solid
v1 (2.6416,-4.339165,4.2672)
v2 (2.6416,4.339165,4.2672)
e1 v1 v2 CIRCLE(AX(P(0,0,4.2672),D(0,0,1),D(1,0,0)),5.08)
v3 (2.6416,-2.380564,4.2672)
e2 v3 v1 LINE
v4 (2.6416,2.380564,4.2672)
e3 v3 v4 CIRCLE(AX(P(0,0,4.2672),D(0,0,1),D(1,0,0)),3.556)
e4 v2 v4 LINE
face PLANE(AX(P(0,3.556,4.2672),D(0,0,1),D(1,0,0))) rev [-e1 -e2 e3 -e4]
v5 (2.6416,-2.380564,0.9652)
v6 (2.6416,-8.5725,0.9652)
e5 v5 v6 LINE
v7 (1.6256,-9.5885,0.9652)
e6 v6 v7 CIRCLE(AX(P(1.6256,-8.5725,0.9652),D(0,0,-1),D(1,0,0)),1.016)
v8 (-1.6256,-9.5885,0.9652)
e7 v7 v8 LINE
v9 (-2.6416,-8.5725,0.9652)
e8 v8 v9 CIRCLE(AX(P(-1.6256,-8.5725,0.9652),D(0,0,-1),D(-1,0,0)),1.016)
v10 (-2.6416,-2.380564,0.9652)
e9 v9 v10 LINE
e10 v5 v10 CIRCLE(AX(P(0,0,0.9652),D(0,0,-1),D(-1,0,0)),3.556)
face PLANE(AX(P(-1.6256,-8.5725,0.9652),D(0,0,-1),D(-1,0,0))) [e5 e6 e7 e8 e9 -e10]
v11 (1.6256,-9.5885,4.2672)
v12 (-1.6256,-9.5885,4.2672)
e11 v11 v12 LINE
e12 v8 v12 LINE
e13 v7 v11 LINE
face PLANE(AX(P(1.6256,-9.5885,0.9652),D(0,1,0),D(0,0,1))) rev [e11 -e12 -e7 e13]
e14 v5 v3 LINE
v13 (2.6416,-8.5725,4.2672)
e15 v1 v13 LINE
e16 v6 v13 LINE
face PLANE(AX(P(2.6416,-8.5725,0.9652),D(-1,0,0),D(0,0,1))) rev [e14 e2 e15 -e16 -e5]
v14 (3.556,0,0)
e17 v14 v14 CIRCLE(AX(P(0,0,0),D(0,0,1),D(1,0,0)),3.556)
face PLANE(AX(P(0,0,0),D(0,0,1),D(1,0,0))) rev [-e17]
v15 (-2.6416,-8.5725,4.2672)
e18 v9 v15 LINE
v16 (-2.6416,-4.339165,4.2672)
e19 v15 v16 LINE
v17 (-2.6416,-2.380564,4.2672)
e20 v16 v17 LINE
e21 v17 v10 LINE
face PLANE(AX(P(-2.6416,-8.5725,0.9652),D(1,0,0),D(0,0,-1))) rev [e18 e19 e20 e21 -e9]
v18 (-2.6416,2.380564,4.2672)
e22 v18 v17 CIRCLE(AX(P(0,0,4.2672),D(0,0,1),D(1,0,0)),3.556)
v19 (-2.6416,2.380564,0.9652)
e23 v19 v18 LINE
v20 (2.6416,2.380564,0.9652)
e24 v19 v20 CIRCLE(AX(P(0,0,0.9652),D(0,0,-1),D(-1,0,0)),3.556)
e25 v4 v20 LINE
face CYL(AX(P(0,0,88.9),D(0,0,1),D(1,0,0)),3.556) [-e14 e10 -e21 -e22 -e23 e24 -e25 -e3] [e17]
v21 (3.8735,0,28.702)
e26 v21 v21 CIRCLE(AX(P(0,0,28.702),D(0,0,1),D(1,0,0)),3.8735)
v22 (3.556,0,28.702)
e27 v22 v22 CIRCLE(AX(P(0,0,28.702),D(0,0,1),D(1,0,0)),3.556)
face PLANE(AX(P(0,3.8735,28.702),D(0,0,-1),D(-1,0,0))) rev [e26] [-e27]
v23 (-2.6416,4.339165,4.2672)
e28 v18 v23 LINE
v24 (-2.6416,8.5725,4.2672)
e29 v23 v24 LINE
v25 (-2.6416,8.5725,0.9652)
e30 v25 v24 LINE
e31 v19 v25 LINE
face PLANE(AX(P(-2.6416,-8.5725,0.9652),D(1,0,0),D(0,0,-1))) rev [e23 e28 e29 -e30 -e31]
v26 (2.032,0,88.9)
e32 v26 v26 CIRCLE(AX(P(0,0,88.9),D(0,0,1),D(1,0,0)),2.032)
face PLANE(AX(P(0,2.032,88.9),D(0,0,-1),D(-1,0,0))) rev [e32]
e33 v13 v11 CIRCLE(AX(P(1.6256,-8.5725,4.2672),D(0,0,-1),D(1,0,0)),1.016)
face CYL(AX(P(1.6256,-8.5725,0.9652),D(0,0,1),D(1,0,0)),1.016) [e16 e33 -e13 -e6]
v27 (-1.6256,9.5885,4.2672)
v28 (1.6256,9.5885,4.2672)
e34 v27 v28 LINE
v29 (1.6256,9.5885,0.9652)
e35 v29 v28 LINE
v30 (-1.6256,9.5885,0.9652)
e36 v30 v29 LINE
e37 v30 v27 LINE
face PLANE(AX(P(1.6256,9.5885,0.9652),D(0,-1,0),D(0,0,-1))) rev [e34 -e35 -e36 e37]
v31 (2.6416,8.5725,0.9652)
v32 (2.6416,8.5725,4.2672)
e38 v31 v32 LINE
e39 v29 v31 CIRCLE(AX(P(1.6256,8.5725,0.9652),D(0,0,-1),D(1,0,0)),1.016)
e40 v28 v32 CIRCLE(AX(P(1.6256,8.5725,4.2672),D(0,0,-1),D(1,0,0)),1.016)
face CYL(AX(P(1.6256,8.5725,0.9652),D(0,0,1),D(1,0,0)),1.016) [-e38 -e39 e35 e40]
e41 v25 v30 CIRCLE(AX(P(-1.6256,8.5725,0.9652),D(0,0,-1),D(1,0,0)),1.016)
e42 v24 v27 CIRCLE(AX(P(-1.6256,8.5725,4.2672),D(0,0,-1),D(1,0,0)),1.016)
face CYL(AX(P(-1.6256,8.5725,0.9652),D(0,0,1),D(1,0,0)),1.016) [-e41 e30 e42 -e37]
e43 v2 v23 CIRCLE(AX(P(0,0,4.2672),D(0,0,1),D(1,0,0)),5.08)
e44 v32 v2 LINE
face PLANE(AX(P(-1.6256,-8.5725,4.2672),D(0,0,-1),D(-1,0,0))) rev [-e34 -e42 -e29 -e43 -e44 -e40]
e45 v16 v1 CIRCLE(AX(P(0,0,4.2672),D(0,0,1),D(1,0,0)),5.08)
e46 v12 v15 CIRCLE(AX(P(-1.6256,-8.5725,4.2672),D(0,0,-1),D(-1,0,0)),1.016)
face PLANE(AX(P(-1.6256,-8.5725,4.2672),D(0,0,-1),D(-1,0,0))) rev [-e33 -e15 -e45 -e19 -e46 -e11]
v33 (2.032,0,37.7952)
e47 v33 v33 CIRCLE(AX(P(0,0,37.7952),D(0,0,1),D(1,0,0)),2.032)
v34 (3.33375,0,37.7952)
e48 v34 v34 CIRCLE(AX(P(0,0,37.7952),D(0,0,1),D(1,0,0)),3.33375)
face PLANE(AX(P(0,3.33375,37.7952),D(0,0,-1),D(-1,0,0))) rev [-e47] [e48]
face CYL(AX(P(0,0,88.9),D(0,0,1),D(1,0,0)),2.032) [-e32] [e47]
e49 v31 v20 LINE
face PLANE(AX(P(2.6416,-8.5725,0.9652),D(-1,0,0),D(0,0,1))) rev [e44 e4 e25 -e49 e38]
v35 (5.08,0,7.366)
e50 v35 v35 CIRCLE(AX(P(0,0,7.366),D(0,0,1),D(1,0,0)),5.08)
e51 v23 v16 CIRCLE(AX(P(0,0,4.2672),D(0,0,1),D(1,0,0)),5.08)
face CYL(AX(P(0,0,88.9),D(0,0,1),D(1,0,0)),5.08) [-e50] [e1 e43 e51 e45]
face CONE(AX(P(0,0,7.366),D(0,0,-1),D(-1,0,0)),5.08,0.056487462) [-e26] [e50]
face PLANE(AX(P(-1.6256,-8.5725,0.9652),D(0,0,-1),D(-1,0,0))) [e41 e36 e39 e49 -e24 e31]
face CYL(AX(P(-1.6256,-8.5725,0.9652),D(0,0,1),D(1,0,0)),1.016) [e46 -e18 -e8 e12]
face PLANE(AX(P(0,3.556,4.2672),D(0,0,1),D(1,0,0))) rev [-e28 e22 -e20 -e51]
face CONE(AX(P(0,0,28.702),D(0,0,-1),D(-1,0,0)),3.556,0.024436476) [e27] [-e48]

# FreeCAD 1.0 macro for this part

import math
import FreeCAD as App
import Part
import Sketcher

V = App.Vector
Q = App.Units.Quantity


def add_polygon(sketch, points):
    """Adds a closed chain of lines whose ends are joined by coincident constraints."""
    first, n = sketch.GeometryCount, len(points)
    for a, b in zip(points, points[1:] + points[:1]):
        sketch.addGeometry(Part.LineSegment(App.Vector(*a, 0), App.Vector(*b, 0)), False)
    for i in range(n):
        sketch.addConstraint(Sketcher.Constraint("Coincident", first + i, 2, first + (i + 1) % n, 1))

doc = App.newDocument("Part")
params = doc.addObject("Spreadsheet::Sheet", "Params")
for row, (alias, value) in enumerate([
    ("sketch1_height", "3.5 in"),
    ("sketch1_width", "0.06 in"),
    ("sketch1_width2", "0.08 in"),
    ("sketch1_width3", "0.14 in"),
    ("sketch1_height2", "0.168 in"),
    ("revolution_angle", "360 deg"),
    ("sketch2_radius", "0.04 in"),
    ("sketch2_width", "0.128 in"),
    ("sketch2_height", "0.675 in"),
    ("pad1_length", "0.13 in"),
], start=1):
    params.set(f"A{row}", alias)
    params.set(f"B{row}", "=" + value)
    params.setAlias(f"B{row}", alias)

body = doc.addObject("PartDesign::Body", "Body")

# Sketch on YZ plane
sketch1 = body.newObject("Sketcher::SketchObject", "Sketch")
sketch1.AttachmentSupport = (doc.getObject("YZ_Plane"), [""])
sketch1.MapMode = "FlatFace"
add_polygon(sketch1, [(3.56, 0), (3.56, 4.27), (5.08, 4.27), (5.08, 7.37), (3.87, 28.7), (3.56, 28.7), (3.33, 37.8), (2.03, 37.8), (2.03, 88.9), (0, 88.9), (0, 0)])  # lines 0-10
sketch1.addConstraint(Sketcher.Constraint("Vertical", 0))
sketch1.addConstraint(Sketcher.Constraint("Horizontal", 1))
sketch1.addConstraint(Sketcher.Constraint("Vertical", 2))
sketch1.addConstraint(Sketcher.Constraint("Horizontal", 4))
sketch1.addConstraint(Sketcher.Constraint("Horizontal", 6))
sketch1.addConstraint(Sketcher.Constraint("Vertical", 7))
sketch1.addConstraint(Sketcher.Constraint("Horizontal", 8))
sketch1.addConstraint(Sketcher.Constraint("Vertical", 9))
sketch1.addConstraint(Sketcher.Constraint("Horizontal", 10))
sketch1.addConstraint(Sketcher.Constraint("Coincident", 9, 2, -1, 1))
sketch1.addConstraint(Sketcher.Constraint("Vertical", 0, 2, 4, 2))
sketch1.addConstraint(Sketcher.Constraint("DistanceY", 9, 2, 9, 1, Q("3.5 in")))
sketch1.addConstraint(Sketcher.Constraint("DistanceX", 1, 1, 1, 2, Q("0.06 in")))
sketch1.addConstraint(Sketcher.Constraint("DistanceX", 8, 2, 8, 1, Q("0.08 in")))
sketch1.addConstraint(Sketcher.Constraint("DistanceX", 10, 1, 10, 2, Q("0.14 in")))
sketch1.addConstraint(Sketcher.Constraint("DistanceY", 0, 1, 0, 2, Q("0.168 in")))
sketch1.addConstraint(Sketcher.Constraint("DistanceY", 2, 1, 2, 2, Q("0.122 in")))
sketch1.addConstraint(Sketcher.Constraint("DistanceY", 7, 1, 7, 2, Q("2.012 in")))
sketch1.addConstraint(Sketcher.Constraint("DistanceY", -1, 1, 3, 2, Q("1.13 in")))
sketch1.addConstraint(Sketcher.Constraint("DistanceX", 4, 2, 4, 1, Q("0.0125 in")))
sketch1.addConstraint(Sketcher.Constraint("DistanceX", 6, 2, 6, 1, Q("1.30175 mm")))
sketch1.setExpression("Constraints[22]", "Params.sketch1_height")
sketch1.setExpression("Constraints[23]", "Params.sketch1_width")
sketch1.setExpression("Constraints[24]", "Params.sketch1_width2")
sketch1.setExpression("Constraints[25]", "Params.sketch1_width3")
sketch1.setExpression("Constraints[26]", "Params.sketch1_height2")
revolution = body.newObject("PartDesign::Revolution", "Revolution")
revolution.Profile = sketch1
revolution.ReferenceAxis = (sketch1, ["V_Axis"])
revolution.setExpression("Angle", "Params.revolution_angle")

# Sketch on XY plane
sketch2 = body.newObject("Sketcher::SketchObject", "Sketch001")
sketch2.AttachmentSupport = (doc.getObject("XY_Plane"), [""])
sketch2.MapMode = "FlatFace"
sketch2.AttachmentOffset = App.Placement(V(0, 0, 0.168 * 25.4), App.Rotation())
sketch2.addGeometry(Part.LineSegment(V(1.6, -9.6, 0), V(-1.6, -9.6, 0)), False)
sketch2.addGeometry(Part.ArcOfCircle(Part.Circle(V(-1.6, -8.6, 0), V(0, 0, 1), 1), math.radians(180), math.radians(270)), False)
sketch2.addGeometry(Part.LineSegment(V(-2.6, -8.6, 0), V(-2.6, 8.6, 0)), False)
sketch2.addGeometry(Part.ArcOfCircle(Part.Circle(V(-1.6, 8.6, 0), V(0, 0, 1), 1), math.radians(90), math.radians(180)), False)
sketch2.addGeometry(Part.LineSegment(V(-1.6, 9.6, 0), V(1.6, 9.6, 0)), False)
sketch2.addGeometry(Part.ArcOfCircle(Part.Circle(V(1.6, 8.6, 0), V(0, 0, 1), 1), math.radians(0), math.radians(90)), False)
sketch2.addGeometry(Part.LineSegment(V(2.6, 8.6, 0), V(2.6, -8.6, 0)), False)
sketch2.addGeometry(Part.ArcOfCircle(Part.Circle(V(1.6, -8.6, 0), V(0, 0, 1), 1), math.radians(-90), math.radians(0)), False)
sketch2.addConstraint(Sketcher.Constraint("Tangent", 0, 2, 1, 2))
sketch2.addConstraint(Sketcher.Constraint("Tangent", 1, 1, 2, 1))
sketch2.addConstraint(Sketcher.Constraint("Tangent", 2, 2, 3, 2))
sketch2.addConstraint(Sketcher.Constraint("Tangent", 3, 1, 4, 1))
sketch2.addConstraint(Sketcher.Constraint("Tangent", 4, 2, 5, 2))
sketch2.addConstraint(Sketcher.Constraint("Tangent", 5, 1, 6, 1))
sketch2.addConstraint(Sketcher.Constraint("Tangent", 6, 2, 7, 2))
sketch2.addConstraint(Sketcher.Constraint("Tangent", 7, 1, 0, 1))
sketch2.addConstraint(Sketcher.Constraint("Horizontal", 0))
sketch2.addConstraint(Sketcher.Constraint("Vertical", 2))
sketch2.addConstraint(Sketcher.Constraint("Horizontal", 4))
sketch2.addConstraint(Sketcher.Constraint("Vertical", 6))
sketch2.addConstraint(Sketcher.Constraint("Equal", 1, 3))
sketch2.addConstraint(Sketcher.Constraint("Equal", 3, 5))
sketch2.addConstraint(Sketcher.Constraint("Equal", 5, 7))
sketch2.addConstraint(Sketcher.Constraint("Symmetric", 1, 3, 5, 3, -1, 1))
sketch2.addConstraint(Sketcher.Constraint("Radius", 1, Q("0.04 in")))
sketch2.addConstraint(Sketcher.Constraint("DistanceX", 0, 2, 0, 1, Q("0.128 in")))
sketch2.addConstraint(Sketcher.Constraint("DistanceY", 2, 1, 2, 2, Q("0.675 in")))
sketch2.setExpression("Constraints[16]", "Params.sketch2_radius")
sketch2.setExpression("Constraints[17]", "Params.sketch2_width")
sketch2.setExpression("Constraints[18]", "Params.sketch2_height")
pad1 = body.newObject("PartDesign::Pad", "Pad")
pad1.Profile = sketch2
pad1.setExpression("Length", "Params.pad1_length")
pad1.Reversed = True

doc.recompute()
